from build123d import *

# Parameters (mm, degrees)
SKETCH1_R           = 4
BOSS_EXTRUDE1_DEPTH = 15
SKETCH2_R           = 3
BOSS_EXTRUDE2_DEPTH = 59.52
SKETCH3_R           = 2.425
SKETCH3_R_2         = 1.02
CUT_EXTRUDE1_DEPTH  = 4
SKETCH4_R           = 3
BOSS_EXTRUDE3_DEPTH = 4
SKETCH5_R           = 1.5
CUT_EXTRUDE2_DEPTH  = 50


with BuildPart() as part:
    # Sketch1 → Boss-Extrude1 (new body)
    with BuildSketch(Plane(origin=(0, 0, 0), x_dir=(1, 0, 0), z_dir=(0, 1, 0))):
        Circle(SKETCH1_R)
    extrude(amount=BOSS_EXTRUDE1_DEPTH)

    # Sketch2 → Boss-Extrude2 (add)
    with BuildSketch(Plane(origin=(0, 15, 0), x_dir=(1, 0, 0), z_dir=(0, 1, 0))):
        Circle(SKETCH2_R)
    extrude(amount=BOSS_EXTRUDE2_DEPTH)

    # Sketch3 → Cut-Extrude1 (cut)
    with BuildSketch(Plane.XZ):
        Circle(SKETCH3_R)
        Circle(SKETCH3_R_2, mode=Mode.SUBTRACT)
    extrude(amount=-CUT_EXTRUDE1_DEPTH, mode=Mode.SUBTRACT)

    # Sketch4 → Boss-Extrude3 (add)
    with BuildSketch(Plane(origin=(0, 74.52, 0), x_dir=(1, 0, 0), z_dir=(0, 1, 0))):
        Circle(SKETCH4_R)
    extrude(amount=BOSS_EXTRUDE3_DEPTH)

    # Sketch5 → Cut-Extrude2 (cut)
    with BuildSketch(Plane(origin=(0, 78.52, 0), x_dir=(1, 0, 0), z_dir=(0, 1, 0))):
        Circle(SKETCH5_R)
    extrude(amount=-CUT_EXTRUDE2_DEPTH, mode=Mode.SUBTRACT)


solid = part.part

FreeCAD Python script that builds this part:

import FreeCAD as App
import Part
import Sketcher

V = App.Vector
Q = App.Units.Quantity

doc = App.newDocument("Part")
body = doc.addObject("PartDesign::Body", "Body")

# Sketch on XZ plane
sketch1 = body.newObject("Sketcher::SketchObject", "Sketch")
sketch1.AttachmentSupport = (doc.getObject("XZ_Plane"), [""])
sketch1.MapMode = "FlatFace"
sketch1.addGeometry(Part.Circle(V(0, 0, 0), V(0, 0, 1), 4), False)
sketch1.addConstraint([
    Sketcher.Constraint("Coincident", 0, 3, -1, 1),
    Sketcher.Constraint("Diameter", 0, Q("8 mm")),
])
pad1 = body.newObject("PartDesign::Pad", "Pad")
pad1.Profile = sketch1
pad1.Length = 15
pad1.Reversed = True

# Sketch on XZ plane
sketch2 = body.newObject("Sketcher::SketchObject", "Sketch001")
sketch2.AttachmentSupport = (doc.getObject("XZ_Plane"), [""])
sketch2.MapMode = "FlatFace"
sketch2.AttachmentOffset = App.Placement(V(0, 0, -15), App.Rotation())
sketch2.addGeometry(Part.Circle(V(0, 0, 0), V(0, 0, 1), 3), False)
sketch2.addConstraint([
    Sketcher.Constraint("Coincident", 0, 3, -1, 1),
    Sketcher.Constraint("Diameter", 0, Q("6 mm")),
])
pad2 = body.newObject("PartDesign::Pad", "Pad001")
pad2.Profile = sketch2
pad2.Length = 59.52
pad2.Reversed = True

# Sketch on XZ plane
sketch3 = body.newObject("Sketcher::SketchObject", "Sketch002")
sketch3.AttachmentSupport = (doc.getObject("XZ_Plane"), [""])
sketch3.MapMode = "FlatFace"
sketch3.addGeometry([
    Part.Circle(V(0, 0, 0), V(0, 0, 1), 2.425),
    Part.Circle(V(0, 0, 0), V(0, 0, 1), 1.02),
], False)
sketch3.addConstraint([
    Sketcher.Constraint("Coincident", 0, 3, -1, 1),
    Sketcher.Constraint("Coincident", 1, 3, -1, 1),
    Sketcher.Constraint("Diameter", 0, Q("4.85 mm")),
    Sketcher.Constraint("Diameter", 1, Q("2.04 mm")),
])
pocket1 = body.newObject("PartDesign::Pocket", "Pocket")
pocket1.Profile = sketch3
pocket1.Length = 4

# Sketch on XZ plane
sketch4 = body.newObject("Sketcher::SketchObject", "Sketch003")
sketch4.AttachmentSupport = (doc.getObject("XZ_Plane"), [""])
sketch4.MapMode = "FlatFace"
sketch4.AttachmentOffset = App.Placement(V(0, 0, -74.52), App.Rotation())
sketch4.addGeometry(Part.Circle(V(0, 0, 0), V(0, 0, 1), 3), False)
sketch4.addConstraint([
    Sketcher.Constraint("Coincident", 0, 3, -1, 1),
    Sketcher.Constraint("Diameter", 0, Q("6 mm")),
])
pad3 = body.newObject("PartDesign::Pad", "Pad002")
pad3.Profile = sketch4
pad3.Length = 4
pad3.Reversed = True

# Sketch on XZ plane
sketch5 = body.newObject("Sketcher::SketchObject", "Sketch004")
sketch5.AttachmentSupport = (doc.getObject("XZ_Plane"), [""])
sketch5.MapMode = "FlatFace"
sketch5.AttachmentOffset = App.Placement(V(0, 0, -78.52), App.Rotation())
sketch5.addGeometry(Part.Circle(V(0, 0, 0), V(0, 0, 1), 1.5), False)
sketch5.addConstraint([
    Sketcher.Constraint("Coincident", 0, 3, -1, 1),
    Sketcher.Constraint("Diameter", 0, Q("3 mm")),
])
pocket2 = body.newObject("PartDesign::Pocket", "Pocket001")
pocket2.Profile = sketch5
pocket2.Length = 50
pocket2.Reversed = True

doc.recompute()
